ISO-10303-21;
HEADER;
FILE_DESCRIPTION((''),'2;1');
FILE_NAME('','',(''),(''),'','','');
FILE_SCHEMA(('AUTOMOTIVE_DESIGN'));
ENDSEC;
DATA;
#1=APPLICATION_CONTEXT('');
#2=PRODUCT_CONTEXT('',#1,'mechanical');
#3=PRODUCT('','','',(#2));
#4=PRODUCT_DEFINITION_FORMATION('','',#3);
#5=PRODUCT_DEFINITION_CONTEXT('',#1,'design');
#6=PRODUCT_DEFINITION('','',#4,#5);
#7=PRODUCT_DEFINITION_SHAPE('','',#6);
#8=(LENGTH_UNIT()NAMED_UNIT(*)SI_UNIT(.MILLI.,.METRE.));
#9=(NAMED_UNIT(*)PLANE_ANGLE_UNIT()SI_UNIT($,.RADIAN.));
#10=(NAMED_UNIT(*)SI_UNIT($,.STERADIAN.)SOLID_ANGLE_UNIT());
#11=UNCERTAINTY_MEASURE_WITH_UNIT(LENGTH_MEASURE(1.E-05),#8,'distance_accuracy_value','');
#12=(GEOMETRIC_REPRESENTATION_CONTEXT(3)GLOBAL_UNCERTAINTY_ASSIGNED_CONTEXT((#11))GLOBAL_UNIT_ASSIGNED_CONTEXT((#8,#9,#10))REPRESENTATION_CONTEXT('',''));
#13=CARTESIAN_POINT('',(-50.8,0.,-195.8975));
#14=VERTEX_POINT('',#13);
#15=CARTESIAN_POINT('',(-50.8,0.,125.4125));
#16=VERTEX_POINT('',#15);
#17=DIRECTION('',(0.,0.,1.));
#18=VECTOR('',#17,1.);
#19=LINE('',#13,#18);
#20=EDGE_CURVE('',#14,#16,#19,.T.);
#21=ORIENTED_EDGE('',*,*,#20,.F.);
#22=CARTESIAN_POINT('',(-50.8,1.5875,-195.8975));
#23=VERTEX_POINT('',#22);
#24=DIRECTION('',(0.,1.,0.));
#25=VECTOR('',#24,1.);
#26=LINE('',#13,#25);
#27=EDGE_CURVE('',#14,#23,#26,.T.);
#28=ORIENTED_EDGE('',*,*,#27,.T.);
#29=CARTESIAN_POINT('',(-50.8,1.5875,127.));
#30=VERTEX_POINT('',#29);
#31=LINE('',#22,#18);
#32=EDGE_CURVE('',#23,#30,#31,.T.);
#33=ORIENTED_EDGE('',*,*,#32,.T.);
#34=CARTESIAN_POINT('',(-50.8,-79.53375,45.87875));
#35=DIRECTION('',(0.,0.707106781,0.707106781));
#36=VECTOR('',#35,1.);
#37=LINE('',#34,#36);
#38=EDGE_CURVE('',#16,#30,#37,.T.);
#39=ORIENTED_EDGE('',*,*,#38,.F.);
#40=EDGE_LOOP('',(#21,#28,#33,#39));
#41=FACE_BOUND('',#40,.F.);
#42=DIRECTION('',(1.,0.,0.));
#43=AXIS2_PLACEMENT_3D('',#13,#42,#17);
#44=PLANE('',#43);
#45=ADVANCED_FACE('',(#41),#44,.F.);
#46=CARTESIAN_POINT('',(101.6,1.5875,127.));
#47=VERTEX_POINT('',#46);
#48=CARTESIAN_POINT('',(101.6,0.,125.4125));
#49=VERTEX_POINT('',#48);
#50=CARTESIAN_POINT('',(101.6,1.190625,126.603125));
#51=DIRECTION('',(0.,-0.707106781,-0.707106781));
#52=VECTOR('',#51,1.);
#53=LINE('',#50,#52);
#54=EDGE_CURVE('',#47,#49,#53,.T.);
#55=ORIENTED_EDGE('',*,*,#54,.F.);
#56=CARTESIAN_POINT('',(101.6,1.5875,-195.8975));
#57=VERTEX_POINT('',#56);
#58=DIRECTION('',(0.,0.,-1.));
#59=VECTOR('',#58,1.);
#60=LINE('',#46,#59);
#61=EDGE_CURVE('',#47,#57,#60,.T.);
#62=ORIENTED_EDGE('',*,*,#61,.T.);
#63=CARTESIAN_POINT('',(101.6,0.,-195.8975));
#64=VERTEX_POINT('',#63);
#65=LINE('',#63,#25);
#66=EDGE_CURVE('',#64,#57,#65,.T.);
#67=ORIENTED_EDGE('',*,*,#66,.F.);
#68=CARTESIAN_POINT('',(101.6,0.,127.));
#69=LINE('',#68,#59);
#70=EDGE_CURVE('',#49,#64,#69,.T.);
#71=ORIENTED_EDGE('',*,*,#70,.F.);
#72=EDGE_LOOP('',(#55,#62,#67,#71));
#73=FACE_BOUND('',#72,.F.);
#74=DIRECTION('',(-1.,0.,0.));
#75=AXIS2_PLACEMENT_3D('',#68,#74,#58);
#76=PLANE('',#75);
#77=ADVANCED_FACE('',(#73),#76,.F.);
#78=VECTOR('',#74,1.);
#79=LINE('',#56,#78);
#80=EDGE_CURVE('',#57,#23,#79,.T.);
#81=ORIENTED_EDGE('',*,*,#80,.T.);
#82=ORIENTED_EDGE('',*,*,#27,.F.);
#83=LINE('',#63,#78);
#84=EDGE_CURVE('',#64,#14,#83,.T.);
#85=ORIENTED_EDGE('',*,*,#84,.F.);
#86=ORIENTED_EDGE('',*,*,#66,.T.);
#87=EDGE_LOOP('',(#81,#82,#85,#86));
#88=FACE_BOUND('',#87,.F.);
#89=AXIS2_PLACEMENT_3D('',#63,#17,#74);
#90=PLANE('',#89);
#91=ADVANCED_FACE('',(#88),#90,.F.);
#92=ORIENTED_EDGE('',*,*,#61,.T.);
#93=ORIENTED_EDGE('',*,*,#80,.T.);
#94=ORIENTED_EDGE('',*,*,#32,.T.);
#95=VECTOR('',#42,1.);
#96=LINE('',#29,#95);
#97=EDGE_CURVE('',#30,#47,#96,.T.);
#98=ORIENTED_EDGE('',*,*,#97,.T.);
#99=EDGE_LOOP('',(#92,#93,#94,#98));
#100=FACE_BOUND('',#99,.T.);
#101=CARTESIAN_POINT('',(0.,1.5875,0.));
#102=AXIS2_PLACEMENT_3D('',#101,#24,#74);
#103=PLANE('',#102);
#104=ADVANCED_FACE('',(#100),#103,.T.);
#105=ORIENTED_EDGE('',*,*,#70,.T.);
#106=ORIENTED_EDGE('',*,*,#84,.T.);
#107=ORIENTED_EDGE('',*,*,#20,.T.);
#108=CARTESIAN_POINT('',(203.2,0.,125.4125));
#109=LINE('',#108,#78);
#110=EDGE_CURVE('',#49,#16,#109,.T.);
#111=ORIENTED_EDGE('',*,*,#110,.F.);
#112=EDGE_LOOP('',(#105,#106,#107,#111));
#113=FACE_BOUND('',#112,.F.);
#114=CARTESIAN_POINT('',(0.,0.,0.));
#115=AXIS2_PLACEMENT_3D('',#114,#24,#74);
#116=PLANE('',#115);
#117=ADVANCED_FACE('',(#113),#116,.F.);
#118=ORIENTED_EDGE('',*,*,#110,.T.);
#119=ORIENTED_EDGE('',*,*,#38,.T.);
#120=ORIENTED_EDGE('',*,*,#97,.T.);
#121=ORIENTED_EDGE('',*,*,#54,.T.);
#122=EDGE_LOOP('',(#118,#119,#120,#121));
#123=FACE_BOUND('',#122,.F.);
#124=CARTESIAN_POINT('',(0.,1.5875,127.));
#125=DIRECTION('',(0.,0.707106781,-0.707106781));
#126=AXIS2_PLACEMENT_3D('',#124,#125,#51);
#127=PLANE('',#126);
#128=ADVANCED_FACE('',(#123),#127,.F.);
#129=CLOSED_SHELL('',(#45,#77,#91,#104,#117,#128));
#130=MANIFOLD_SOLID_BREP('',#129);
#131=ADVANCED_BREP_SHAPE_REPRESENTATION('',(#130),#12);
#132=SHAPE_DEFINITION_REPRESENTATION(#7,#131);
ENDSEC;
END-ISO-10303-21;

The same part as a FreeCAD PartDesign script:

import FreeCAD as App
import Part
import Sketcher
from FreeCAD import Vector
Q = App.Units.Quantity

doc = App.newDocument("Part")
body = doc.addObject("PartDesign::Body", "Body")

# Sketch on XZ plane
sketch1 = body.newObject("Sketcher::SketchObject", "Sketch")
sketch1.AttachmentSupport = (doc.getObject("XZ_Plane"), [""])
sketch1.MapMode = "FlatFace"
sketch1.addGeometry([
    Part.LineSegment(Vector(102, 127, 0), Vector(102, -196, 0)),
    Part.LineSegment(Vector(102, -196, 0), Vector(-51, -196, 0)),
    Part.LineSegment(Vector(-51, -196, 0), Vector(-51, 127, 0)),
    Part.LineSegment(Vector(-51, 127, 0), Vector(102, 127, 0)),
], False)
sketch1.addConstraint([
    Sketcher.Constraint("Coincident", 0, 2, 1, 1),
    Sketcher.Constraint("Coincident", 1, 2, 2, 1),
    Sketcher.Constraint("Coincident", 2, 2, 3, 1),
    Sketcher.Constraint("Coincident", 3, 2, 0, 1),
    Sketcher.Constraint("Vertical", 0),
    Sketcher.Constraint("Horizontal", 1),
    Sketcher.Constraint("Vertical", 2),
    Sketcher.Constraint("Horizontal", 3),
    Sketcher.Constraint("DistanceX", 1, 2, 1, 1, Q("6 in")),
    Sketcher.Constraint("DistanceY", 0, 2, 0, 1, Q("12.7125 in")),
    Sketcher.Constraint("DistanceX", -1, 1, 0, 2, Q("4 in")),
    Sketcher.Constraint("DistanceY", -1, 1, 2, 2, Q("5 in")),
])
pad1 = body.newObject("PartDesign::Pad", "Pad")
pad1.Profile = sketch1
pad1.Length = Q("0.0625 in")
pad1.Reversed = True

# Sketch on YZ plane
sketch2 = body.newObject("Sketcher::SketchObject", "Sketch001")
sketch2.AttachmentSupport = (doc.getObject("YZ_Plane"), [""])
sketch2.MapMode = "FlatFace"
sketch2.addGeometry([
    Part.LineSegment(Vector(0, 125.4, 0), Vector(1.6, 127, 0)),
    Part.LineSegment(Vector(1.6, 127, 0), Vector(0, 127, 0)),
    Part.LineSegment(Vector(0, 127, 0), Vector(0, 125.4, 0)),
], False)
sketch2.addConstraint([
    Sketcher.Constraint("Coincident", 0, 2, 1, 1),
    Sketcher.Constraint("Coincident", 1, 2, 2, 1),
    Sketcher.Constraint("Coincident", 2, 2, 0, 1),
    Sketcher.Constraint("Horizontal", 1),
    Sketcher.Constraint("Vertical", 2),
    Sketcher.Constraint("PointOnObject", 1, 2, -2),
    Sketcher.Constraint("Equal", 1, 2),
    Sketcher.Constraint("DistanceY", -1, 1, 0, 2, Q("5 in")),
    Sketcher.Constraint("DistanceX", 1, 2, 1, 1, Q("0.0625 in")),
])
pocket1 = body.newObject("PartDesign::Pocket", "Pocket")
pocket1.Profile = sketch2
pocket1.Type = "ThroughAll"
pocket1.Midplane = True

doc.recompute()
